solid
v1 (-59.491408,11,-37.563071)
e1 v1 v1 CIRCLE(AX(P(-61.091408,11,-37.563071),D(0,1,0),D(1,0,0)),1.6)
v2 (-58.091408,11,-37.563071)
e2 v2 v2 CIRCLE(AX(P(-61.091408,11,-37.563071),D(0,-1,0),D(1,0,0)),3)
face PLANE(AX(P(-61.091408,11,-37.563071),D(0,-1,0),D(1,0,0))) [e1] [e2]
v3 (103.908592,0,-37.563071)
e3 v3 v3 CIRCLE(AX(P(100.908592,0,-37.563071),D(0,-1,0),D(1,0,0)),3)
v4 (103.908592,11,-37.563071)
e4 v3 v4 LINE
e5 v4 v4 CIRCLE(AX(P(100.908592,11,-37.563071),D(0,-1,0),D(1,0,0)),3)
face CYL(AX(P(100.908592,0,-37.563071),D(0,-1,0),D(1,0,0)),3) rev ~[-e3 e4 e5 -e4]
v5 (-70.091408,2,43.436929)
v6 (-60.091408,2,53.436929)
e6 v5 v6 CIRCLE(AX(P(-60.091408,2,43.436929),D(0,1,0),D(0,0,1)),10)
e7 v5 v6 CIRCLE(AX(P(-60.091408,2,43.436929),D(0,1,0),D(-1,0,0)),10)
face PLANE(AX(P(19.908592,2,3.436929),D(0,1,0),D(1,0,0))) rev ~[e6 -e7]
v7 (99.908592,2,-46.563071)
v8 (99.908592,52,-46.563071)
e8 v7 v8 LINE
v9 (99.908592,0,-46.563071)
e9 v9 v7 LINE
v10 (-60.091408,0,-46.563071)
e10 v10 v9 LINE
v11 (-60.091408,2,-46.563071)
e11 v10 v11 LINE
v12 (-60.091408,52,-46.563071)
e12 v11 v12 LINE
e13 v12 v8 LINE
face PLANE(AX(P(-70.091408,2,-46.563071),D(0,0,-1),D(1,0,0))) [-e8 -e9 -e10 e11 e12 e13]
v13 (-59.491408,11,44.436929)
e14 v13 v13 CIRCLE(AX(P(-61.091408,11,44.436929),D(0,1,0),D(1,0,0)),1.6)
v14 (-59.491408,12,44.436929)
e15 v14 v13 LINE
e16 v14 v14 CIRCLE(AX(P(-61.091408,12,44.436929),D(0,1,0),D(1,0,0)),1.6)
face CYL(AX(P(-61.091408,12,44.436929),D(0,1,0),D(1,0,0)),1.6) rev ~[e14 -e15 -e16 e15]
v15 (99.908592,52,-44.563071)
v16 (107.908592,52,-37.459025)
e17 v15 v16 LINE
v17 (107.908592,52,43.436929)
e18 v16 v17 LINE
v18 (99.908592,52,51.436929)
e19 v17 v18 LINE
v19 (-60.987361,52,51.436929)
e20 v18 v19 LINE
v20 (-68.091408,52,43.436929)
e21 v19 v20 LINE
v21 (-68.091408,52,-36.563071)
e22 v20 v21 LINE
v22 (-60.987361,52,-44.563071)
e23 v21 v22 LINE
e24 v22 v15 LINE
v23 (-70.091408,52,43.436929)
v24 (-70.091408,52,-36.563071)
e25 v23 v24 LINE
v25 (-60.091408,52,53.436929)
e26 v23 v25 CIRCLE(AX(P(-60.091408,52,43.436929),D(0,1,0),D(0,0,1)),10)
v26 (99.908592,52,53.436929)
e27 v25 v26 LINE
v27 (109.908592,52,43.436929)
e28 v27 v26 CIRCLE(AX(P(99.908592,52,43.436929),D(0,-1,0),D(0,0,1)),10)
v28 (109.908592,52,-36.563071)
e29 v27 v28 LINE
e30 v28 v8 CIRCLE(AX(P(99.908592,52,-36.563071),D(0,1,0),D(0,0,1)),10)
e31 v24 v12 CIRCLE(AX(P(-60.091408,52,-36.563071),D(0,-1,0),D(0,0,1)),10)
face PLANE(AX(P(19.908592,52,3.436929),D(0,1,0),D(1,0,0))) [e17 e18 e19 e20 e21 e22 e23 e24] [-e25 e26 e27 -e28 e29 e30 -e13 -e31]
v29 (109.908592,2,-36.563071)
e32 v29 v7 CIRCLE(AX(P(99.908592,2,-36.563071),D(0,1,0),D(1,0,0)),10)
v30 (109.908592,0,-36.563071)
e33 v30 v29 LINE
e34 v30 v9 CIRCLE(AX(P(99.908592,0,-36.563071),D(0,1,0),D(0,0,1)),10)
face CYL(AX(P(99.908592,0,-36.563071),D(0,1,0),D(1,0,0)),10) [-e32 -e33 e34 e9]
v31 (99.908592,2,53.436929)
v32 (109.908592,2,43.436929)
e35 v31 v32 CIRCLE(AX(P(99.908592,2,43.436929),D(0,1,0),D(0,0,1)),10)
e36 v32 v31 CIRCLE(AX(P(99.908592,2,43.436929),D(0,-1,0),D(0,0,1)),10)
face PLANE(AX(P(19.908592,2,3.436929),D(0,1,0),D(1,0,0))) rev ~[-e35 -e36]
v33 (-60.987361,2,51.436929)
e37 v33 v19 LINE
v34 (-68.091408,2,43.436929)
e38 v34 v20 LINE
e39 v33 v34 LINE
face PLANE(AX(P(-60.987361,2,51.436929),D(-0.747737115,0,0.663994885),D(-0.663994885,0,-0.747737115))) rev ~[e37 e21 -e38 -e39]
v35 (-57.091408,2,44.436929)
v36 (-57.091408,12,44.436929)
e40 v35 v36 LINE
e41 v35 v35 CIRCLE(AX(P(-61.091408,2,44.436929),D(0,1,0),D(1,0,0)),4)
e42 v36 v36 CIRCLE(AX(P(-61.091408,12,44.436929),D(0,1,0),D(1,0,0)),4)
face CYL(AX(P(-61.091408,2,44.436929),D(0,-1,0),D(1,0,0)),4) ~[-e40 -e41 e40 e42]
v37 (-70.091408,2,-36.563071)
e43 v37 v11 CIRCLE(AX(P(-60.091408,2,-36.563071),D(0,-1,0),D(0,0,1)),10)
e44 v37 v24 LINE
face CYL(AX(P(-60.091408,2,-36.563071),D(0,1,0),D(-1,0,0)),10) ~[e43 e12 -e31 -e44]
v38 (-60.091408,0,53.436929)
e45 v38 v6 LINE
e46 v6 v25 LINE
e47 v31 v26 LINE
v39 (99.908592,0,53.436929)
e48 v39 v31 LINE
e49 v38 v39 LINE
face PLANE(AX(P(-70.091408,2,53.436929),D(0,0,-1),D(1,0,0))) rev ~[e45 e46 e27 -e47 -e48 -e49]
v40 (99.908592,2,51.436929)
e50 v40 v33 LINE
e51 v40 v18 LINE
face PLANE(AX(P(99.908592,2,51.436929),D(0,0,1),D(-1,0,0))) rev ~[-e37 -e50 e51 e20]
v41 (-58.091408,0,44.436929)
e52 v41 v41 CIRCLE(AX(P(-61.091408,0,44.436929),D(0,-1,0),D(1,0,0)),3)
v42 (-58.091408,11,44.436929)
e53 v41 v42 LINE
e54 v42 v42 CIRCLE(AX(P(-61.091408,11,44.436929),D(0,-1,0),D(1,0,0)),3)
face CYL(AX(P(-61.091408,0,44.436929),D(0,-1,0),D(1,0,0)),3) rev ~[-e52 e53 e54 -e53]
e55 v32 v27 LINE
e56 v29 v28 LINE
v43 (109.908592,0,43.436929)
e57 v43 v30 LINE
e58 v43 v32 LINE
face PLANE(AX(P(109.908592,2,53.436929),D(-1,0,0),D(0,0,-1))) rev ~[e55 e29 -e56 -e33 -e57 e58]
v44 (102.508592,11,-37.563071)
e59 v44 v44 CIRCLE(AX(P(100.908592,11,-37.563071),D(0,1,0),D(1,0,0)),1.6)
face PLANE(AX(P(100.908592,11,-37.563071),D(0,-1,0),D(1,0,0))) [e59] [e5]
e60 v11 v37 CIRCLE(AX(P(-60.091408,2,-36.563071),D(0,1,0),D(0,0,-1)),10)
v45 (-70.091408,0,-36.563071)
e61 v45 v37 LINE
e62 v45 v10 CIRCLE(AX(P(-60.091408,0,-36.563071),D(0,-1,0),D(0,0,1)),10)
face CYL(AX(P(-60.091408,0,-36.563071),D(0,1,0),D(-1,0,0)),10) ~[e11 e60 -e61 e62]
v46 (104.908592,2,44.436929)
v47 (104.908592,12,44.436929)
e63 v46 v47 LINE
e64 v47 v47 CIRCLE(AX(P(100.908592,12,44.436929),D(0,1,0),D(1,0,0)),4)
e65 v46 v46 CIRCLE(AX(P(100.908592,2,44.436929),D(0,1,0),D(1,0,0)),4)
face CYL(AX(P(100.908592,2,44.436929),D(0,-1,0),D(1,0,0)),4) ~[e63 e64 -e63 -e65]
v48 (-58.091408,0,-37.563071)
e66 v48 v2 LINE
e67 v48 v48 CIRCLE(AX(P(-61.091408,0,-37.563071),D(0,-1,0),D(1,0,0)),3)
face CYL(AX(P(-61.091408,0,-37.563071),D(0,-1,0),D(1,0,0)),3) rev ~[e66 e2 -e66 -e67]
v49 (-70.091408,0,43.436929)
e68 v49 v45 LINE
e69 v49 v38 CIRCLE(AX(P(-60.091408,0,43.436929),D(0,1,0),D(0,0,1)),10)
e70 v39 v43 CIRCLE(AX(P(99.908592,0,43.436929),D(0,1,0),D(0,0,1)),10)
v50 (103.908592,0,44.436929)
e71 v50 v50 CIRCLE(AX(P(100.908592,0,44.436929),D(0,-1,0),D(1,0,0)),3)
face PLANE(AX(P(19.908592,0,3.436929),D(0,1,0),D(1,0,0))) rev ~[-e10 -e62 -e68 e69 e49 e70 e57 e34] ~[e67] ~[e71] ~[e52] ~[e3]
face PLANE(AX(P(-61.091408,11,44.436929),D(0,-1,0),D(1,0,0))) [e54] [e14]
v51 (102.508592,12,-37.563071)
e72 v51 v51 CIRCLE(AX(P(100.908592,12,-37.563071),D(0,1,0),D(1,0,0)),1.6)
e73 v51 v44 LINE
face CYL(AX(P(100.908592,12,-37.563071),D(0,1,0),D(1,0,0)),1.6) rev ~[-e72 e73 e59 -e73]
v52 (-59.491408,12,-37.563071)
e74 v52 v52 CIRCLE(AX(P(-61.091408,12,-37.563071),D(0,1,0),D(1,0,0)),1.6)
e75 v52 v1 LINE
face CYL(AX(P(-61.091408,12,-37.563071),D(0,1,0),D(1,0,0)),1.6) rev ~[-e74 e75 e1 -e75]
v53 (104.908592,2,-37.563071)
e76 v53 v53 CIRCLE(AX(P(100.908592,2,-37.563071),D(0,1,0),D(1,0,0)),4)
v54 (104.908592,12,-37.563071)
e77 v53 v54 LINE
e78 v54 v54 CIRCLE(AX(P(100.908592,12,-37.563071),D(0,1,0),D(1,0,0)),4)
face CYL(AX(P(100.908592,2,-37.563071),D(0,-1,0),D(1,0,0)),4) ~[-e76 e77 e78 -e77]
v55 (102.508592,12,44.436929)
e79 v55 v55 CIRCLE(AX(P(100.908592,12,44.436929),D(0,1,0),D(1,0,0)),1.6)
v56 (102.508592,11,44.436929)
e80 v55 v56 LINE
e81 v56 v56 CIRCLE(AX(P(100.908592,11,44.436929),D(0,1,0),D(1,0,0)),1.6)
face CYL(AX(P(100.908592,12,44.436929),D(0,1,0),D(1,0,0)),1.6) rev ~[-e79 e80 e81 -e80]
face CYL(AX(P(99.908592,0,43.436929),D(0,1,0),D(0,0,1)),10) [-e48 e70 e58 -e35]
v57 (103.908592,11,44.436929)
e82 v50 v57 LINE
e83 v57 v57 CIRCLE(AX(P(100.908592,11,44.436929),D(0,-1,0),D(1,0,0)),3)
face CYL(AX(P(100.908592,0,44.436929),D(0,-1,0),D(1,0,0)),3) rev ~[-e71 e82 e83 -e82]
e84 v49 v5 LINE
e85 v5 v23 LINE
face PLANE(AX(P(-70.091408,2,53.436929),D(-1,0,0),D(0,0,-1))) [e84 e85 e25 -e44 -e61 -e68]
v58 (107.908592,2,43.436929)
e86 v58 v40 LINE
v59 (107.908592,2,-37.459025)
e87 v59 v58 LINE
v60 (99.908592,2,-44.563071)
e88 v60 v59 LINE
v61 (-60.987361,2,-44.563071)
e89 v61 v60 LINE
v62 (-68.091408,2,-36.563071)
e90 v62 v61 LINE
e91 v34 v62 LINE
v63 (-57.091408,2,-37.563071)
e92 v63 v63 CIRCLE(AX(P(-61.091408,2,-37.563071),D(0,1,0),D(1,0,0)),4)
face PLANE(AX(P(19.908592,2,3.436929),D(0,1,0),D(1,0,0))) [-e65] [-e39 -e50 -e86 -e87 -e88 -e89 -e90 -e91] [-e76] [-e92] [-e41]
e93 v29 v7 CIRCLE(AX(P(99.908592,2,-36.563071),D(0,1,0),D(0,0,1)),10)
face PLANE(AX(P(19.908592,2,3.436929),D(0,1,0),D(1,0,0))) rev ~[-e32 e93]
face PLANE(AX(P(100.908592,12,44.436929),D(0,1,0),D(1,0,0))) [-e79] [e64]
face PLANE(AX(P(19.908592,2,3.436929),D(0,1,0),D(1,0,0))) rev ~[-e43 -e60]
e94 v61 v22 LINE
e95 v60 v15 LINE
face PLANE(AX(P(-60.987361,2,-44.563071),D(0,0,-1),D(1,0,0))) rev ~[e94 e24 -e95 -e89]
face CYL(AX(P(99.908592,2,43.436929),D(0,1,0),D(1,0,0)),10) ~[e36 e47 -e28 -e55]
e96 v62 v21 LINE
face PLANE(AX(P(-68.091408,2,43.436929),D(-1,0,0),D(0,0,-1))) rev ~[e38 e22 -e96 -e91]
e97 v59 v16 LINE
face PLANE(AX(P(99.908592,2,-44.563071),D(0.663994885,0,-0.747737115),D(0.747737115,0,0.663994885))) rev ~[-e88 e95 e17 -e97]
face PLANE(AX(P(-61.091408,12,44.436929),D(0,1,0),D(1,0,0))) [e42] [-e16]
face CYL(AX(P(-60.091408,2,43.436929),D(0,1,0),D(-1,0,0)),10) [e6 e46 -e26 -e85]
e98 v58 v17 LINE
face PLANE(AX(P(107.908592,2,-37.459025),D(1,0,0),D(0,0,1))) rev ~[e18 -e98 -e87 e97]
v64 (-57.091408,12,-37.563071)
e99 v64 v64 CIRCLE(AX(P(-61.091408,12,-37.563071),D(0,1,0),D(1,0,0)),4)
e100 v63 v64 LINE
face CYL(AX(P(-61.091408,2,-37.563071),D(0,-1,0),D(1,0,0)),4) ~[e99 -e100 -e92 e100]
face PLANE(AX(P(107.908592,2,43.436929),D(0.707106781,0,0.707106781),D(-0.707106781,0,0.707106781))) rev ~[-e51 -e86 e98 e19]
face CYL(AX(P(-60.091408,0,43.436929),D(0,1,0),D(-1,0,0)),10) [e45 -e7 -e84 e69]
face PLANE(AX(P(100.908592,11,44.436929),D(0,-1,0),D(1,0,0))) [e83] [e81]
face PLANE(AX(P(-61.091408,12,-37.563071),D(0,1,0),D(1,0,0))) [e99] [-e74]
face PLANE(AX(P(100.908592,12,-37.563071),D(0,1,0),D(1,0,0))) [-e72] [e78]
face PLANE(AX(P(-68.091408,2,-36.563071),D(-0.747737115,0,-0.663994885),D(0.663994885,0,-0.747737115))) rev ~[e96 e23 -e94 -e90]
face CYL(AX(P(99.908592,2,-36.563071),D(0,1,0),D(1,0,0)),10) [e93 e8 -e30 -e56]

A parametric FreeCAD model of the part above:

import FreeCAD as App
import Part
import Sketcher
Q = App.Units.Quantity


def edges_at(feature, points):
    """Names of the edges that pass closest to the given points."""
    edges = feature.Shape.Edges
    near = lambda p: min(range(len(edges)), key=lambda i: edges[i].distToShape(Part.Vertex(*p))[0])
    return sorted({f"Edge{near(p) + 1}" for p in points})

doc = App.newDocument("Part")
body = doc.addObject("PartDesign::Body", "Body")

# Sketch on XZ plane
sketch1 = doc.addObject("Sketcher::SketchObject", "Sketch")
body.addObject(sketch1)
sketch1.AttachmentSupport = (doc.XZ_Plane, [""])
sketch1.MapMode = "FlatFace"
sketch1.addGeometry([
    Part.LineSegment(App.Vector(-70, -47, 0), App.Vector(-70, 53, 0)),
    Part.LineSegment(App.Vector(-70, 53, 0), App.Vector(110, 53, 0)),
    Part.LineSegment(App.Vector(110, 53, 0), App.Vector(110, -47, 0)),
    Part.LineSegment(App.Vector(110, -47, 0), App.Vector(-70, -47, 0)),
], False)
sketch1.addConstraint([
    Sketcher.Constraint("Coincident", 0, 2, 1, 1),
    Sketcher.Constraint("Coincident", 1, 2, 2, 1),
    Sketcher.Constraint("Coincident", 2, 2, 3, 1),
    Sketcher.Constraint("Coincident", 3, 2, 0, 1),
    Sketcher.Constraint("Vertical", 0),
    Sketcher.Constraint("Horizontal", 1),
    Sketcher.Constraint("Vertical", 2),
    Sketcher.Constraint("Horizontal", 3),
    Sketcher.Constraint("DistanceX", 1, 1, 1, 2, Q("180 mm")),
    Sketcher.Constraint("DistanceY", 0, 1, 0, 2, Q("100 mm")),
    Sketcher.Constraint("DistanceY", -1, 1, 0, 2, Q("53.436929 mm")),
    Sketcher.Constraint("DistanceX", 0, 2, -1, 1, Q("70.091408 mm")),
])
pad1 = doc.addObject("PartDesign::Pad", "Pad")
body.addObject(pad1)
pad1.Profile = sketch1
pad1.Length = 2
pad1.Reversed = True
doc.recompute()

fillet = doc.addObject("PartDesign::Fillet", "Fillet")
body.addObject(fillet)
fillet.Base = (pad1, edges_at(pad1, [
    (-70.091, 1, -46.563),
    (109.909, 1, -46.563),
    (109.909, 1, 53.437),
    (-70.091, 1, 53.437),
]))
fillet.Radius = 10

# Sketch on XZ plane
sketch2 = doc.addObject("Sketcher::SketchObject", "Sketch001")
body.addObject(sketch2)
sketch2.AttachmentSupport = (doc.XZ_Plane, [""])
sketch2.MapMode = "FlatFace"
sketch2.AttachmentOffset = App.Placement(App.Vector(0, 0, -2), App.Rotation())
sketch2.addGeometry([
    Part.Circle(App.Vector(-61.1, -37.6, 0), App.Vector(0, 0, 1), 4),
    Part.Circle(App.Vector(100.9, -37.6, 0), App.Vector(0, 0, 1), 4),
    Part.Circle(App.Vector(100.9, 44.4, 0), App.Vector(0, 0, 1), 4),
    Part.Circle(App.Vector(-61.1, 44.4, 0), App.Vector(0, 0, 1), 4),
], False)
sketch2.addConstraint([
    Sketcher.Constraint("Equal", 0, 1),
    Sketcher.Constraint("Equal", 1, 2),
    Sketcher.Constraint("Equal", 2, 3),
    Sketcher.Constraint("Horizontal", 0, 3, 1, 3),
    Sketcher.Constraint("Horizontal", 2, 3, 3, 3),
    Sketcher.Constraint("Vertical", 1, 3, 2, 3),
    Sketcher.Constraint("Vertical", 0, 3, 3, 3),
    Sketcher.Constraint("Diameter", 0, Q("8 mm")),
    Sketcher.Constraint("DistanceX", 0, 3, 1, 3, Q("162 mm")),
    Sketcher.Constraint("DistanceY", 1, 3, 2, 3, Q("82 mm")),
    Sketcher.Constraint("DistanceY", 0, 3, -1, 1, Q("37.563071 mm")),
    Sketcher.Constraint("DistanceX", 0, 3, -1, 1, Q("61.091408 mm")),
])
pad2 = doc.addObject("PartDesign::Pad", "Pad001")
body.addObject(pad2)
pad2.Profile = sketch2
pad2.Length = 10
pad2.Reversed = True

# Sketch on XZ plane
sketch3 = doc.addObject("Sketcher::SketchObject", "Sketch002")
body.addObject(sketch3)
sketch3.AttachmentSupport = (doc.XZ_Plane, [""])
sketch3.MapMode = "FlatFace"
sketch3.addGeometry([
    Part.Circle(App.Vector(-61.1, -37.6, 0), App.Vector(0, 0, 1), 3),
    Part.Circle(App.Vector(-61.1, 44.4, 0), App.Vector(0, 0, 1), 3),
    Part.Circle(App.Vector(100.9, 44.4, 0), App.Vector(0, 0, 1), 3),
    Part.Circle(App.Vector(100.9, -37.6, 0), App.Vector(0, 0, 1), 3),
], False)
sketch3.addConstraint([
    Sketcher.Constraint("Equal", 0, 1),
    Sketcher.Constraint("Equal", 1, 2),
    Sketcher.Constraint("Equal", 2, 3),
    Sketcher.Constraint("Horizontal", 1, 3, 2, 3),
    Sketcher.Constraint("Horizontal", 0, 3, 3, 3),
    Sketcher.Constraint("Vertical", 0, 3, 1, 3),
    Sketcher.Constraint("Vertical", 2, 3, 3, 3),
    Sketcher.Constraint("Diameter", 0, Q("6 mm")),
    Sketcher.Constraint("DistanceY", 0, 3, 1, 3, Q("82 mm")),
    Sketcher.Constraint("DistanceX", 1, 3, 2, 3, Q("162 mm")),
    Sketcher.Constraint("DistanceY", 0, 3, -1, 1, Q("37.563071 mm")),
    Sketcher.Constraint("DistanceX", 0, 3, -1, 1, Q("61.091408 mm")),
])
pocket1 = doc.addObject("PartDesign::Pocket", "Pocket")
body.addObject(pocket1)
pocket1.Profile = sketch3
pocket1.Length = 11

# Sketch on XZ plane
sketch4 = doc.addObject("Sketcher::SketchObject", "Sketch003")
body.addObject(sketch4)
sketch4.AttachmentSupport = (doc.XZ_Plane, [""])
sketch4.MapMode = "FlatFace"
sketch4.AttachmentOffset = App.Placement(App.Vector(0, 0, -12), App.Rotation())
sketch4.addGeometry([
    Part.Circle(App.Vector(100.9, -37.6, 0), App.Vector(0, 0, 1), 1.6),
    Part.Circle(App.Vector(100.9, 44.4, 0), App.Vector(0, 0, 1), 1.6),
    Part.Circle(App.Vector(-61.1, -37.6, 0), App.Vector(0, 0, 1), 1.6),
    Part.Circle(App.Vector(-61.1, 44.4, 0), App.Vector(0, 0, 1), 1.6),
], False)
sketch4.addConstraint([
    Sketcher.Constraint("Equal", 0, 1),
    Sketcher.Constraint("Equal", 1, 2),
    Sketcher.Constraint("Equal", 2, 3),
    Sketcher.Constraint("Horizontal", 0, 3, 2, 3),
    Sketcher.Constraint("Horizontal", 1, 3, 3, 3),
    Sketcher.Constraint("Vertical", 0, 3, 1, 3),
    Sketcher.Constraint("Vertical", 2, 3, 3, 3),
    Sketcher.Constraint("Diameter", 0, Q("3.2 mm")),
    Sketcher.Constraint("DistanceY", 0, 3, 1, 3, Q("82 mm")),
    Sketcher.Constraint("DistanceX", 2, 3, 0, 3, Q("162 mm")),
    Sketcher.Constraint("DistanceY", 0, 3, -1, 1, Q("37.563071 mm")),
    Sketcher.Constraint("DistanceX", -1, 1, 0, 3, Q("100.908592 mm")),
])
pocket2 = doc.addObject("PartDesign::Pocket", "Pocket001")
body.addObject(pocket2)
pocket2.Profile = sketch4
pocket2.Type = "ThroughAll"
pocket2.Reversed = True

# Sketch on XZ plane
sketch5 = doc.addObject("Sketcher::SketchObject", "Sketch004")
body.addObject(sketch5)
sketch5.AttachmentSupport = (doc.XZ_Plane, [""])
sketch5.MapMode = "FlatFace"
sketch5.AttachmentOffset = App.Placement(App.Vector(0, 0, -2), App.Rotation())
sketch5.addGeometry([
    Part.LineSegment(App.Vector(-70, -47, 0), App.Vector(-70, 53, 0)),  # 0
    Part.LineSegment(App.Vector(-70, 53, 0), App.Vector(110, 53, 0)),  # 1
    Part.LineSegment(App.Vector(110, 53, 0), App.Vector(110, -47, 0)),  # 2
    Part.LineSegment(App.Vector(110, -47, 0), App.Vector(-70, -47, 0)),  # 3
    Part.LineSegment(App.Vector(108, 51, 0), App.Vector(-68, 51, 0)),  # 4
    Part.LineSegment(App.Vector(-68, 51, 0), App.Vector(-68, -45, 0)),  # 5
    Part.LineSegment(App.Vector(-68, -45, 0), App.Vector(108, -45, 0)),  # 6
    Part.LineSegment(App.Vector(108, -45, 0), App.Vector(108, 51, 0)),  # 7
], False)
sketch5.addConstraint([
    Sketcher.Constraint("Coincident", 0, 2, 1, 1),
    Sketcher.Constraint("Coincident", 1, 2, 2, 1),
    Sketcher.Constraint("Coincident", 2, 2, 3, 1),
    Sketcher.Constraint("Coincident", 3, 2, 0, 1),
    Sketcher.Constraint("Coincident", 4, 2, 5, 1),
    Sketcher.Constraint("Coincident", 5, 2, 6, 1),
    Sketcher.Constraint("Coincident", 6, 2, 7, 1),
    Sketcher.Constraint("Coincident", 7, 2, 4, 1),
    Sketcher.Constraint("Vertical", 0),
    Sketcher.Constraint("Horizontal", 1),
    Sketcher.Constraint("Vertical", 2),
    Sketcher.Constraint("Horizontal", 3),
    Sketcher.Constraint("Horizontal", 4),
    Sketcher.Constraint("Vertical", 5),
    Sketcher.Constraint("Horizontal", 6),
    Sketcher.Constraint("Vertical", 7),
    Sketcher.Constraint("DistanceX", 1, 1, 1, 2, Q("180 mm")),
    Sketcher.Constraint("DistanceX", 4, 2, 4, 1, Q("176 mm")),
    Sketcher.Constraint("DistanceY", 0, 1, 0, 2, Q("100 mm")),
    Sketcher.Constraint("DistanceY", 5, 2, 5, 1, Q("96 mm")),
    Sketcher.Constraint("DistanceX", 0, 2, 4, 2, Q("2 mm")),
    Sketcher.Constraint("DistanceY", 4, 2, 0, 2, Q("2 mm")),
    Sketcher.Constraint("DistanceY", -1, 1, 0, 2, Q("53.436929 mm")),
    Sketcher.Constraint("DistanceX", 0, 2, -1, 1, Q("70.091408 mm")),
])
pad3 = doc.addObject("PartDesign::Pad", "Pad002")
body.addObject(pad3)
pad3.Profile = sketch5
pad3.Length = 50
pad3.Reversed = True

# Sketch on XZ plane
sketch6 = doc.addObject("Sketcher::SketchObject", "Sketch005")
body.addObject(sketch6)
sketch6.AttachmentSupport = (doc.XZ_Plane, [""])
sketch6.MapMode = "FlatFace"
sketch6.AttachmentOffset = App.Placement(App.Vector(0, 0, -2), App.Rotation())
sketch6.addGeometry([
    Part.LineSegment(App.Vector(-70, -47, 0), App.Vector(-70, 53, 0)),  # 0
    Part.LineSegment(App.Vector(-70, 53, 0), App.Vector(110, 53, 0)),  # 1
    Part.LineSegment(App.Vector(110, 53, 0), App.Vector(110, -47, 0)),  # 2
    Part.LineSegment(App.Vector(110, -47, 0), App.Vector(-70, -47, 0)),  # 3
    Part.LineSegment(App.Vector(-61, 51, 0), App.Vector(-68, 43, 0)),  # 4
    Part.LineSegment(App.Vector(-68, 43, 0), App.Vector(-68, -37, 0)),  # 5
    Part.LineSegment(App.Vector(-68, -37, 0), App.Vector(-61, -45, 0)),  # 6
    Part.LineSegment(App.Vector(-61, -45, 0), App.Vector(100, -45, 0)),  # 7
    Part.LineSegment(App.Vector(100, -45, 0), App.Vector(108, -37, 0)),  # 8
    Part.LineSegment(App.Vector(108, -37, 0), App.Vector(108, 43, 0)),  # 9
    Part.LineSegment(App.Vector(108, 43, 0), App.Vector(100, 51, 0)),  # 10
    Part.LineSegment(App.Vector(100, 51, 0), App.Vector(-61, 51, 0)),  # 11
], False)
sketch6.addConstraint([
    Sketcher.Constraint("Coincident", 0, 2, 1, 1),
    Sketcher.Constraint("Coincident", 1, 2, 2, 1),
    Sketcher.Constraint("Coincident", 2, 2, 3, 1),
    Sketcher.Constraint("Coincident", 3, 2, 0, 1),
    Sketcher.Constraint("Coincident", 4, 2, 5, 1),
    Sketcher.Constraint("Coincident", 5, 2, 6, 1),
    Sketcher.Constraint("Coincident", 6, 2, 7, 1),
    Sketcher.Constraint("Coincident", 7, 2, 8, 1),
    Sketcher.Constraint("Coincident", 8, 2, 9, 1),
    Sketcher.Constraint("Coincident", 9, 2, 10, 1),
    Sketcher.Constraint("Coincident", 10, 2, 11, 1),
    Sketcher.Constraint("Coincident", 11, 2, 4, 1),
    Sketcher.Constraint("Vertical", 0),
    Sketcher.Constraint("Horizontal", 1),
    Sketcher.Constraint("Vertical", 2),
    Sketcher.Constraint("Horizontal", 3),
    Sketcher.Constraint("Vertical", 5),
    Sketcher.Constraint("Horizontal", 7),
    Sketcher.Constraint("Vertical", 9),
    Sketcher.Constraint("Horizontal", 11),
    Sketcher.Constraint("Perpendicular", 6, 8),
    Sketcher.Constraint("Horizontal", 4, 2, 9, 2),
    Sketcher.Constraint("Vertical", 7, 2, 10, 2),
    Sketcher.Constraint("Vertical", 6, 2, 11, 2),
    Sketcher.Constraint("Equal", 4, 6),
    Sketcher.Constraint("Equal", 6, 8),
    Sketcher.Constraint("DistanceX", 1, 1, 1, 2, Q("180 mm")),
    Sketcher.Constraint("DistanceY", 0, 1, 0, 2, Q("100 mm")),
    Sketcher.Constraint("DistanceY", 5, 2, 5, 1, Q("80 mm")),
    Sketcher.Constraint("DistanceX", 0, 2, 4, 2, Q("2 mm")),
    Sketcher.Constraint("DistanceY", 4, 2, 0, 2, Q("10 mm")),
    Sketcher.Constraint("DistanceY", 3, 2, 6, 2, Q("2 mm")),
    Sketcher.Constraint("DistanceX", 7, 2, 2, 2, Q("10 mm")),
    Sketcher.Constraint("DistanceX", 7, 1, 7, 2, Q("160.895954 mm")),
    Sketcher.Constraint("DistanceY", -1, 1, 0, 2, Q("53.436929 mm")),
    Sketcher.Constraint("DistanceX", 6, 2, -1, 1, Q("60.987361 mm")),
])
pad4 = doc.addObject("PartDesign::Pad", "Pad003")
body.addObject(pad4)
pad4.Profile = sketch6
pad4.Length = 50
pad4.Reversed = True
doc.recompute()

fillet2 = doc.addObject("PartDesign::Fillet", "Fillet001")
body.addObject(fillet2)
fillet2.Base = (pad4, edges_at(pad4, [
    (-70.091, 27, 53.437),
    (-70.091, 27, -46.563),
    (109.909, 27, -46.563),
    (109.909, 27, 53.437),
]))
fillet2.Radius = 10

doc.recompute()
